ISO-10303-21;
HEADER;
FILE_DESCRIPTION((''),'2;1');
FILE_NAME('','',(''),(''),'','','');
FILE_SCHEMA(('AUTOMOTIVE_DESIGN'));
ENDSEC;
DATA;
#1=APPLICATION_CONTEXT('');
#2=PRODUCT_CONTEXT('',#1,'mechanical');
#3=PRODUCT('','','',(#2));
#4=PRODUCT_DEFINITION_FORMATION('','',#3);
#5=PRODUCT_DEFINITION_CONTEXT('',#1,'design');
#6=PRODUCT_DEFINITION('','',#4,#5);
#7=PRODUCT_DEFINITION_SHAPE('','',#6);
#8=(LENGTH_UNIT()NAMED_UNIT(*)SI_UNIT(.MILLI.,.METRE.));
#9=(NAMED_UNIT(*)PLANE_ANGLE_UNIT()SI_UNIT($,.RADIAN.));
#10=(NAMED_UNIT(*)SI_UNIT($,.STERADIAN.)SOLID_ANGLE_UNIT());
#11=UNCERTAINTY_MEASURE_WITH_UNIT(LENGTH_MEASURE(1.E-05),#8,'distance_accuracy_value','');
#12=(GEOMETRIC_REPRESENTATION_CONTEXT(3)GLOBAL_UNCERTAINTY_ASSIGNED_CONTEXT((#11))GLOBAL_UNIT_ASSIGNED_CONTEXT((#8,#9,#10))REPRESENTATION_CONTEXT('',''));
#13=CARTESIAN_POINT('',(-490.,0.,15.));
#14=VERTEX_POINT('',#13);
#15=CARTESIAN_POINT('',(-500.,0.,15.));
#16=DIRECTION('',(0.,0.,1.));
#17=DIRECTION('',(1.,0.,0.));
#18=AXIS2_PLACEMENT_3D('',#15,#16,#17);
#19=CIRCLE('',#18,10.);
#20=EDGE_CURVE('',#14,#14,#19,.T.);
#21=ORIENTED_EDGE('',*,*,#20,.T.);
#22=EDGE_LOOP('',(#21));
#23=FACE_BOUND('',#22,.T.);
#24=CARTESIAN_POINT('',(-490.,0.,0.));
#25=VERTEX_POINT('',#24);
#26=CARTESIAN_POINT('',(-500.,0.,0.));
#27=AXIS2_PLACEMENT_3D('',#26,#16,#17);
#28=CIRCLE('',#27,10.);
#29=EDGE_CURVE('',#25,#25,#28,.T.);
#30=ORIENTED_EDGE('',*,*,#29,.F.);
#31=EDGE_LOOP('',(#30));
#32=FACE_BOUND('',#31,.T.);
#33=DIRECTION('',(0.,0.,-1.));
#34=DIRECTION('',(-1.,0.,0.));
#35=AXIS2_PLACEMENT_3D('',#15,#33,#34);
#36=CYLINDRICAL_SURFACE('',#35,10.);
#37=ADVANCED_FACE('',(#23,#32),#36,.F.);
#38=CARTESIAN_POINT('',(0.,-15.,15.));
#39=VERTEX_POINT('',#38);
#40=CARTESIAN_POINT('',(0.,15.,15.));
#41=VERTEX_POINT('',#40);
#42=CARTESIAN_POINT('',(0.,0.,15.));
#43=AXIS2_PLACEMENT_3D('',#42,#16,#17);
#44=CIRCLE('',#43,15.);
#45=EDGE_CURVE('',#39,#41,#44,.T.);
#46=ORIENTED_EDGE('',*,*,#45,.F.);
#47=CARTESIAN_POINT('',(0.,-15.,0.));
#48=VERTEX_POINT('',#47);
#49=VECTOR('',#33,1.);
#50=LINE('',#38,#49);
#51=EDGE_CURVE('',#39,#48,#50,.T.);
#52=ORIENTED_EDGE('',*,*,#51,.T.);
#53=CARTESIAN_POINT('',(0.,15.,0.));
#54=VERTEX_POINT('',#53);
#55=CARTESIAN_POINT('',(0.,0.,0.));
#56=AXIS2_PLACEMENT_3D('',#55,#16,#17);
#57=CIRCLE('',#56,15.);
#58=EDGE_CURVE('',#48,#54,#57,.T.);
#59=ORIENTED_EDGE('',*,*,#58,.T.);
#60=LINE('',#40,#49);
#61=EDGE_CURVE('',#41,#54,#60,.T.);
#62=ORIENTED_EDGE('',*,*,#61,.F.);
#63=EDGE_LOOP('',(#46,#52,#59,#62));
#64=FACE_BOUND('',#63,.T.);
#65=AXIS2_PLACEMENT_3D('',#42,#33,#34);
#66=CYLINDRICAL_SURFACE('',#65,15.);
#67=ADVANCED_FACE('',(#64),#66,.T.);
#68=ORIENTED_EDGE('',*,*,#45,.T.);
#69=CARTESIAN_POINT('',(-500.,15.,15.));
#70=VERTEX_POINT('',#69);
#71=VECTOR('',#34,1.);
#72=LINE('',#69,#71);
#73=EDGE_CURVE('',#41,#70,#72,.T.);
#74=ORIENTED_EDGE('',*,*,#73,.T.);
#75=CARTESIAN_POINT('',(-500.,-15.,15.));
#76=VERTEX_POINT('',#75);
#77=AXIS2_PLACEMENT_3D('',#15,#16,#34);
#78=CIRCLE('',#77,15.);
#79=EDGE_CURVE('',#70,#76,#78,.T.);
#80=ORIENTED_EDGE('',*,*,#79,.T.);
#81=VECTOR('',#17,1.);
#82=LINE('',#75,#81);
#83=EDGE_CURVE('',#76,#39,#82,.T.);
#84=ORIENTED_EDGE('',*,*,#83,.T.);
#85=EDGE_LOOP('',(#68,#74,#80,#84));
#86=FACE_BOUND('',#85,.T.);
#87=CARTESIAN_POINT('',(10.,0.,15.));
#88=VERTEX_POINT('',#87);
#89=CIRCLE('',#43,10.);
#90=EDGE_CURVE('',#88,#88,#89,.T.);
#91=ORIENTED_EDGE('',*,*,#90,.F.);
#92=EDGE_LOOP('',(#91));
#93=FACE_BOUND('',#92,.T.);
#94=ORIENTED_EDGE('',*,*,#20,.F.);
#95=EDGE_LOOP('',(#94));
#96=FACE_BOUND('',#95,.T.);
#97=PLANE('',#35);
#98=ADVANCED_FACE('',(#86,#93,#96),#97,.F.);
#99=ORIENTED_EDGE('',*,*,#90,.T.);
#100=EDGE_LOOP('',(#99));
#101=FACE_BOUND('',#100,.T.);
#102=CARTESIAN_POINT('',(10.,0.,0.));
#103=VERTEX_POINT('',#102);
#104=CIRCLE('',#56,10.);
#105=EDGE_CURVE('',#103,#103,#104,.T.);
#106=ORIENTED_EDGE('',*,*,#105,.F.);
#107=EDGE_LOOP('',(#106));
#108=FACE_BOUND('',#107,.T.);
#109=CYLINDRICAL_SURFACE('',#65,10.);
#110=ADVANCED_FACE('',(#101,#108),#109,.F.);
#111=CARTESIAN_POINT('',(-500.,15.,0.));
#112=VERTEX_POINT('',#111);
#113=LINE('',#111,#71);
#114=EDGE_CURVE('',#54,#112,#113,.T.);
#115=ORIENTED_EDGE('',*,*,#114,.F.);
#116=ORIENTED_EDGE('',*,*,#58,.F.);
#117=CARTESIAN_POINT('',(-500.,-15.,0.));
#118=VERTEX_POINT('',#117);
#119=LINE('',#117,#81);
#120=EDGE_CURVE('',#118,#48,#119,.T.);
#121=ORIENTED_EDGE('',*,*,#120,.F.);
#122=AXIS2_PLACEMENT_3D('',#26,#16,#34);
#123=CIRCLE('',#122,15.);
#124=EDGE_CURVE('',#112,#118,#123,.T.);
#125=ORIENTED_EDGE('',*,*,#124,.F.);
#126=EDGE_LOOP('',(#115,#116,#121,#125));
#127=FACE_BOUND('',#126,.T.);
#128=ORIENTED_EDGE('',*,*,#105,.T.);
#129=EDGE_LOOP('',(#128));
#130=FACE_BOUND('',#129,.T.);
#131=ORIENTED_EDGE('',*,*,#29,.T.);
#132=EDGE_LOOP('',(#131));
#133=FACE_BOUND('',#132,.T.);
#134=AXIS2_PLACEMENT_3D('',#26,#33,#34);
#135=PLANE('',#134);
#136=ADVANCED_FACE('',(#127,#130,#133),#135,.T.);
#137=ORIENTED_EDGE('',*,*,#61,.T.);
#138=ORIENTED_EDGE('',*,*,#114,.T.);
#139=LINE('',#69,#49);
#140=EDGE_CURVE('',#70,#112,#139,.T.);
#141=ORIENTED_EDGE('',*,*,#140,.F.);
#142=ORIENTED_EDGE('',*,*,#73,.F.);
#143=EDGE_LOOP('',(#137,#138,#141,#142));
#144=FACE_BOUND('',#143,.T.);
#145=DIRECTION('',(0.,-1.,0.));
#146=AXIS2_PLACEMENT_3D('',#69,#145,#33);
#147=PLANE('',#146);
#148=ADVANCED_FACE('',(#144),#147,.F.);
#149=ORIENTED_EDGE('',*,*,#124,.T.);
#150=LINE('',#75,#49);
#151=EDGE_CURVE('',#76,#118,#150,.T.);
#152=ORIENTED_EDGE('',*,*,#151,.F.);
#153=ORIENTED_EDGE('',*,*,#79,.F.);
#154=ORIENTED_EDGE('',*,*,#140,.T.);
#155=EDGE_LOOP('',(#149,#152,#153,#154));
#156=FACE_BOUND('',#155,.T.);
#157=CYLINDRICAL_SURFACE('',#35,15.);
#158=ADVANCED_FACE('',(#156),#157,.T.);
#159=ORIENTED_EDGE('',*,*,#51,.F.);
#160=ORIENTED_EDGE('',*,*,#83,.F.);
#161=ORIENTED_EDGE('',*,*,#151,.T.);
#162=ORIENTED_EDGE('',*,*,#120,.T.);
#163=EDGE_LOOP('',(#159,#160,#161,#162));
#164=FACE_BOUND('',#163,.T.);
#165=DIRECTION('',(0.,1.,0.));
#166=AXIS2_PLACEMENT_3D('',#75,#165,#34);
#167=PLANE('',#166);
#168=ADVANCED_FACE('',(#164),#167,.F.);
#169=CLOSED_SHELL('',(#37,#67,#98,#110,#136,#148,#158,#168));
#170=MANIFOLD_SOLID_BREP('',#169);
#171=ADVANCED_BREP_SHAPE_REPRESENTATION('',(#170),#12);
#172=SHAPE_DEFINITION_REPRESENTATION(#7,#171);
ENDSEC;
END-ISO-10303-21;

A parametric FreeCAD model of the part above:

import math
import FreeCAD as App
import Part
import Sketcher
from FreeCAD import Vector
Q = App.Units.Quantity

doc = App.newDocument("Part")
body = doc.addObject("PartDesign::Body", "Body")

# Sketch on XY plane
sketch1 = body.newObject("Sketcher::SketchObject", "Sketch")
sketch1.AttachmentSupport = (doc.getObject("XY_Plane"), [""])
sketch1.MapMode = "FlatFace"
sketch1.addGeometry(Part.LineSegment(Vector(0, 15, 0), Vector(-500, 15, 0)), False)
sketch1.addGeometry(Part.ArcOfCircle(Part.Circle(Vector(-500, 0, 0), Vector(0, 0, 1), 15), math.radians(90), math.radians(270)), False)
sketch1.addGeometry(Part.LineSegment(Vector(-500, -15, 0), Vector(0, -15, 0)), False)
sketch1.addGeometry(Part.ArcOfCircle(Part.Circle(Vector(0, 0, 0), Vector(0, 0, 1), 15), math.radians(-90), math.radians(90)), False)
sketch1.addGeometry(Part.Circle(Vector(0, 0, 0), Vector(0, 0, 1), 10), False)
sketch1.addGeometry(Part.Circle(Vector(-500, 0, 0), Vector(0, 0, 1), 10), False)
sketch1.addConstraint(Sketcher.Constraint("Tangent", 0, 2, 1, 1))
sketch1.addConstraint(Sketcher.Constraint("Tangent", 1, 2, 2, 1))
sketch1.addConstraint(Sketcher.Constraint("Tangent", 2, 2, 3, 1))
sketch1.addConstraint(Sketcher.Constraint("Tangent", 3, 2, 0, 1))
sketch1.addConstraint(Sketcher.Constraint("Horizontal", 0))
sketch1.addConstraint(Sketcher.Constraint("Horizontal", 2))
sketch1.addConstraint(Sketcher.Constraint("Coincident", 3, 3, -1, 1))
sketch1.addConstraint(Sketcher.Constraint("Coincident", 4, 3, -1, 1))
sketch1.addConstraint(Sketcher.Constraint("Coincident", 5, 3, 1, 3))
sketch1.addConstraint(Sketcher.Constraint("Equal", 4, 5))
sketch1.addConstraint(Sketcher.Constraint("Diameter", 4, Q("20 mm")))
sketch1.addConstraint(Sketcher.Constraint("Radius", 1, Q("15 mm")))
sketch1.addConstraint(Sketcher.Constraint("DistanceX", 0, 2, 0, 1, Q("500 mm")))
pad1 = body.newObject("PartDesign::Pad", "Pad")
pad1.Profile = sketch1
pad1.Length = 15

doc.recompute()
